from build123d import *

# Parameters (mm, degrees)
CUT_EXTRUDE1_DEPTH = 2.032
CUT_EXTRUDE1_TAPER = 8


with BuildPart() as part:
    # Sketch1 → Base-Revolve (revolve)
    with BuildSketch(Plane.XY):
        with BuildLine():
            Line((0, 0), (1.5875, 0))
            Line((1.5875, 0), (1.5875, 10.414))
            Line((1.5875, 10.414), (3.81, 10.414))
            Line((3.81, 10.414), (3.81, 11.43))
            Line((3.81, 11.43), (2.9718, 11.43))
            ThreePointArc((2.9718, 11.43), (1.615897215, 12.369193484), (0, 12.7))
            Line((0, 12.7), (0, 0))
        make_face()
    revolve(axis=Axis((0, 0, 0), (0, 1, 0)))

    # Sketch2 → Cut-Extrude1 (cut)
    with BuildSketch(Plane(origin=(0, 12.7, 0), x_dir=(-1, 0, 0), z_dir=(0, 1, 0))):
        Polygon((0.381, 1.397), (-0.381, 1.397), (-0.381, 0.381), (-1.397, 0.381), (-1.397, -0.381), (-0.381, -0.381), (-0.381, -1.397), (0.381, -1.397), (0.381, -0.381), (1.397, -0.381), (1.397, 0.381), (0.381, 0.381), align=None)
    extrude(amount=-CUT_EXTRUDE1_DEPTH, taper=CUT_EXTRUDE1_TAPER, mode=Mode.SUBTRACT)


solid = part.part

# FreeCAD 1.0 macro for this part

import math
import FreeCAD as App
import Part
import Sketcher

V = App.Vector
Q = App.Units.Quantity

doc = App.newDocument("Part")
body = doc.addObject("PartDesign::Body", "Body")

sketch1 = body.newObject("Sketcher::SketchObject", "Sketch")
sketch1.AttachmentSupport = (doc.getObject("XY_Plane"), [""])
sketch1.MapMode = "FlatFace"
sketch1.addGeometry([
    Part.LineSegment(V(0, 0, 0), V(1.6, 0, 0)),
    Part.LineSegment(V(1.6, 0, 0), V(1.6, 10.4, 0)),
    Part.LineSegment(V(1.6, 10.4, 0), V(3.8, 10.4, 0)),
    Part.LineSegment(V(3.8, 10.4, 0), V(3.8, 11.4, 0)),
    Part.LineSegment(V(3.8, 11.4, 0), V(3, 11.4, 0)),
    Part.ArcOfCircle(Part.Circle(V(0, 8.6, 0), V(0, 0, 1), 4.1), math.radians(44), math.radians(90)),
    Part.LineSegment(V(0, 12.7, 0), V(0, 0, 0)),
], False)
sketch1.addConstraint([
    Sketcher.Constraint("Coincident", 0, 2, 1, 1),
    Sketcher.Constraint("Coincident", 1, 2, 2, 1),
    Sketcher.Constraint("Coincident", 2, 2, 3, 1),
    Sketcher.Constraint("Coincident", 3, 2, 4, 1),
    Sketcher.Constraint("Coincident", 4, 2, 5, 1),
    Sketcher.Constraint("Coincident", 5, 2, 6, 1),
    Sketcher.Constraint("Coincident", 6, 2, 0, 1),
    Sketcher.Constraint("Horizontal", 0),
    Sketcher.Constraint("Vertical", 1),
    Sketcher.Constraint("Horizontal", 2),
    Sketcher.Constraint("Vertical", 3),
    Sketcher.Constraint("Horizontal", 4),
    Sketcher.Constraint("Vertical", 6),
    Sketcher.Constraint("Coincident", 6, 2, -1, 1),
    Sketcher.Constraint("PointOnObject", 5, 3, -2),
    Sketcher.Constraint("DistanceY", 6, 2, 6, 1, Q("0.5 in")),
    Sketcher.Constraint("DistanceY", 1, 1, 1, 2, Q("0.41 in")),
    Sketcher.Constraint("DistanceY", 3, 1, 3, 2, Q("0.04 in")),
    Sketcher.Constraint("DistanceX", 0, 1, 0, 2, Q("0.0625 in")),
    Sketcher.Constraint("DistanceX", 4, 2, 4, 1, Q("0.033 in")),
    Sketcher.Constraint("DistanceX", -1, 1, 2, 2, Q("0.15 in")),
])
revolution = body.newObject("PartDesign::Revolution", "Revolution")
revolution.Profile = sketch1
revolution.ReferenceAxis = (sketch1, ["V_Axis"])
revolution.Angle = 360

sketch2 = body.newObject("Sketcher::SketchObject", "Sketch001")
sketch2.AttachmentSupport = (doc.getObject("XZ_Plane"), [""])
sketch2.MapMode = "FlatFace"
sketch2.AttachmentOffset = App.Placement(V(0, 0, -0.5 * 25.4), App.Rotation())
sketch2.addGeometry([
    Part.LineSegment(V(-0.4, 1.4, 0), V(0.4, 1.4, 0)),
    Part.LineSegment(V(0.4, 1.4, 0), V(0.4, 0.4, 0)),
    Part.LineSegment(V(0.4, 0.4, 0), V(1.4, 0.4, 0)),
    Part.LineSegment(V(1.4, 0.4, 0), V(1.4, -0.4, 0)),
    Part.LineSegment(V(1.4, -0.4, 0), V(0.4, -0.4, 0)),
    Part.LineSegment(V(0.4, -0.4, 0), V(0.4, -1.4, 0)),
    Part.LineSegment(V(0.4, -1.4, 0), V(-0.4, -1.4, 0)),
    Part.LineSegment(V(-0.4, -1.4, 0), V(-0.4, -0.4, 0)),
    Part.LineSegment(V(-0.4, -0.4, 0), V(-1.4, -0.4, 0)),
    Part.LineSegment(V(-1.4, -0.4, 0), V(-1.4, 0.4, 0)),
    Part.LineSegment(V(-1.4, 0.4, 0), V(-0.4, 0.4, 0)),
    Part.LineSegment(V(-0.4, 0.4, 0), V(-0.4, 1.4, 0)),
], False)
sketch2.addConstraint([
    Sketcher.Constraint("Coincident", 0, 2, 1, 1),
    Sketcher.Constraint("Coincident", 1, 2, 2, 1),
    Sketcher.Constraint("Coincident", 2, 2, 3, 1),
    Sketcher.Constraint("Coincident", 3, 2, 4, 1),
    Sketcher.Constraint("Coincident", 4, 2, 5, 1),
    Sketcher.Constraint("Coincident", 5, 2, 6, 1),
    Sketcher.Constraint("Coincident", 6, 2, 7, 1),
    Sketcher.Constraint("Coincident", 7, 2, 8, 1),
    Sketcher.Constraint("Coincident", 8, 2, 9, 1),
    Sketcher.Constraint("Coincident", 9, 2, 10, 1),
    Sketcher.Constraint("Coincident", 10, 2, 11, 1),
    Sketcher.Constraint("Coincident", 11, 2, 0, 1),
    Sketcher.Constraint("Horizontal", 0),
    Sketcher.Constraint("Vertical", 1),
    Sketcher.Constraint("Horizontal", 2),
    Sketcher.Constraint("Vertical", 3),
    Sketcher.Constraint("Horizontal", 4),
    Sketcher.Constraint("Vertical", 5),
    Sketcher.Constraint("Horizontal", 6),
    Sketcher.Constraint("Vertical", 7),
    Sketcher.Constraint("Horizontal", 8),
    Sketcher.Constraint("Vertical", 9),
    Sketcher.Constraint("Horizontal", 10),
    Sketcher.Constraint("Vertical", 11),
    Sketcher.Constraint("Symmetric", 0, 2, 6, 2, -1, 1),
    Sketcher.Constraint("Symmetric", 2, 2, 8, 2, -1, 1),
    Sketcher.Constraint("Symmetric", 4, 2, 10, 2, -1, 1),
    Sketcher.Constraint("Symmetric", 4, 2, 7, 2, -2),
    Sketcher.Constraint("Equal", 10, 1),
    Sketcher.Constraint("Equal", 6, 3),
    Sketcher.Constraint("DistanceX", 0, 1, 0, 2, Q("0.03 in")),
    Sketcher.Constraint("DistanceX", 2, 1, 2, 2, Q("0.04 in")),
])
pocket1 = body.newObject("PartDesign::Pocket", "Pocket")
pocket1.Profile = sketch2
pocket1.Length = Q("0.08 in")
pocket1.Reversed = True
pocket1.TaperAngle = -8

doc.recompute()
